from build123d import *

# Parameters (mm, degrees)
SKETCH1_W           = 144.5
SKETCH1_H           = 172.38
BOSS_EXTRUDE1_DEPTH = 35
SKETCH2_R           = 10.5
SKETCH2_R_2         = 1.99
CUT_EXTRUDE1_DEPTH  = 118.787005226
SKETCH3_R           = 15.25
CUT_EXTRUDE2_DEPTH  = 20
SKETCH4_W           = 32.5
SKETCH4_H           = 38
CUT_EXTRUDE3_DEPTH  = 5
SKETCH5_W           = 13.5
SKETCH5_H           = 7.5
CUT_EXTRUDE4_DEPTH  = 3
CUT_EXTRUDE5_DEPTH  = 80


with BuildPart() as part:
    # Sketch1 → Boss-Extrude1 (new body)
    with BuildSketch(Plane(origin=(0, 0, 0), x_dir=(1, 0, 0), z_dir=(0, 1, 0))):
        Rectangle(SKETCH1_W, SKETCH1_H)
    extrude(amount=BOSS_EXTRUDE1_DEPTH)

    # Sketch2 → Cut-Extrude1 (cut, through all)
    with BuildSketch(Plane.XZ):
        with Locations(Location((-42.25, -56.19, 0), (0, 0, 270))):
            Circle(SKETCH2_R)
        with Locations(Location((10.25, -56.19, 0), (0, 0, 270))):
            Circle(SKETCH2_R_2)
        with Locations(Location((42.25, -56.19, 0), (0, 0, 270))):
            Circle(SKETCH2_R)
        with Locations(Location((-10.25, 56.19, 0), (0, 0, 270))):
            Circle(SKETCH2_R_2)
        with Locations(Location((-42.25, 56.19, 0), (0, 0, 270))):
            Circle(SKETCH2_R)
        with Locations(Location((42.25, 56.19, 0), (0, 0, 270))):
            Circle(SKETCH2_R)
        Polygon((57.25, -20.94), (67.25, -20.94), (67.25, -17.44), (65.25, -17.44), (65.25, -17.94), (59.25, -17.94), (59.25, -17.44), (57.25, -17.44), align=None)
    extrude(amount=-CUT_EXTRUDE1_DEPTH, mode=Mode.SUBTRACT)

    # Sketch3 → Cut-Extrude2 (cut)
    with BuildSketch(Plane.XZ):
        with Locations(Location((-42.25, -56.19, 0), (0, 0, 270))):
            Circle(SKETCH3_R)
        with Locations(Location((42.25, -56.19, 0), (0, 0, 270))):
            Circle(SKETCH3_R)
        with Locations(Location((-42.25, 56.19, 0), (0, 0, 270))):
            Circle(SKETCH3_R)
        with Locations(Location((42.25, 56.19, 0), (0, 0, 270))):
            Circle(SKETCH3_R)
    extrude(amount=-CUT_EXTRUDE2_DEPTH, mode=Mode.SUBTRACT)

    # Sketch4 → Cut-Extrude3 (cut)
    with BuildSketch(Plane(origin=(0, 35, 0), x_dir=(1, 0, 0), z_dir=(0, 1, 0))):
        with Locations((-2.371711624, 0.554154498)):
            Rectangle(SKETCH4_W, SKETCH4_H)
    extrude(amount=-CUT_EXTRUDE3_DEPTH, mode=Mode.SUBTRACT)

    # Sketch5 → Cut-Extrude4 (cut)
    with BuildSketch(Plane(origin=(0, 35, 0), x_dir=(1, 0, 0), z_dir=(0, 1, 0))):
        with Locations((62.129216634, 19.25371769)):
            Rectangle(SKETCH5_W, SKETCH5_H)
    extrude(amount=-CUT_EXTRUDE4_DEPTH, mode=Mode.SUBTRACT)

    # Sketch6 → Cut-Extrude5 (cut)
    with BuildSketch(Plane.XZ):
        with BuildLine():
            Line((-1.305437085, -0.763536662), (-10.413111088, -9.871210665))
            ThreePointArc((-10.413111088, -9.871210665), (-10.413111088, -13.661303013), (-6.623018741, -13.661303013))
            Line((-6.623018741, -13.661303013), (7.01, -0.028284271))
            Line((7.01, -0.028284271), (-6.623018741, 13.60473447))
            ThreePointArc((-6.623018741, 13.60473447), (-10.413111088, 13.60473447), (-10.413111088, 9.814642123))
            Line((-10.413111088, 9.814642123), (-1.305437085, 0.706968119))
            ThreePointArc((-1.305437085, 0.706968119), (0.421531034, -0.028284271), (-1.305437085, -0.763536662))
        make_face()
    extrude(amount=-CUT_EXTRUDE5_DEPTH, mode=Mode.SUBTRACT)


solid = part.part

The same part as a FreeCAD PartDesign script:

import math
import FreeCAD as App
import Part
import Sketcher
Q = App.Units.Quantity

doc = App.newDocument("Part")
body = doc.addObject("PartDesign::Body", "Body")

# Sketch on XZ plane
sketch1 = doc.addObject("Sketcher::SketchObject", "Sketch")
body.addObject(sketch1)
sketch1.AttachmentSupport = (doc.XZ_Plane, [""])
sketch1.MapMode = "FlatFace"
sketch1.addGeometry(Part.LineSegment(App.Vector(-72.25, -86.19, 0), App.Vector(-72.25, 86.19, 0)), False)
sketch1.addGeometry(Part.LineSegment(App.Vector(-72.25, 86.19, 0), App.Vector(72.25, 86.19, 0)), False)
sketch1.addGeometry(Part.LineSegment(App.Vector(72.25, 86.19, 0), App.Vector(72.25, -86.19, 0)), False)
sketch1.addGeometry(Part.LineSegment(App.Vector(72.25, -86.19, 0), App.Vector(-72.25, -86.19, 0)), False)
sketch1.addConstraint(Sketcher.Constraint("Coincident", 0, 2, 1, 1))
sketch1.addConstraint(Sketcher.Constraint("Coincident", 1, 2, 2, 1))
sketch1.addConstraint(Sketcher.Constraint("Coincident", 2, 2, 3, 1))
sketch1.addConstraint(Sketcher.Constraint("Coincident", 3, 2, 0, 1))
sketch1.addConstraint(Sketcher.Constraint("Vertical", 0))
sketch1.addConstraint(Sketcher.Constraint("Horizontal", 1))
sketch1.addConstraint(Sketcher.Constraint("Vertical", 2))
sketch1.addConstraint(Sketcher.Constraint("Horizontal", 3))
sketch1.addConstraint(Sketcher.Constraint("Symmetric", 0, 2, 2, 2, -1, 1))
sketch1.addConstraint(Sketcher.Constraint("DistanceX", 1, 1, 1, 2, Q("144.5 mm")))
sketch1.addConstraint(Sketcher.Constraint("DistanceY", 0, 1, 0, 2, Q("172.38 mm")))
pad1 = doc.addObject("PartDesign::Pad", "Pad")
body.addObject(pad1)
pad1.Profile = sketch1
pad1.Length = 35
pad1.Reversed = True

# Sketch on XZ plane
sketch2 = doc.addObject("Sketcher::SketchObject", "Sketch001")
body.addObject(sketch2)
sketch2.AttachmentSupport = (doc.XZ_Plane, [""])
sketch2.MapMode = "FlatFace"
sketch2.addGeometry(Part.Circle(App.Vector(-42.25, -56.19, 0), App.Vector(0, 0, 1), 10.5), False)
sketch2.addGeometry(Part.Circle(App.Vector(10.25, -56.19, 0), App.Vector(0, 0, 1), 1.99), False)
sketch2.addGeometry(Part.Circle(App.Vector(42.25, -56.19, 0), App.Vector(0, 0, 1), 10.5), False)
sketch2.addGeometry(Part.Circle(App.Vector(-10.25, 56.19, 0), App.Vector(0, 0, 1), 1.99), False)
sketch2.addGeometry(Part.Circle(App.Vector(-42.25, 56.19, 0), App.Vector(0, 0, 1), 10.5), False)
sketch2.addGeometry(Part.Circle(App.Vector(42.25, 56.19, 0), App.Vector(0, 0, 1), 10.5), False)
sketch2.addGeometry(Part.LineSegment(App.Vector(57.25, -20.94, 0), App.Vector(67.25, -20.94, 0)), False)
sketch2.addGeometry(Part.LineSegment(App.Vector(67.25, -20.94, 0), App.Vector(67.25, -17.44, 0)), False)
sketch2.addGeometry(Part.LineSegment(App.Vector(67.25, -17.44, 0), App.Vector(65.25, -17.44, 0)), False)
sketch2.addGeometry(Part.LineSegment(App.Vector(65.25, -17.44, 0), App.Vector(65.25, -17.94, 0)), False)
sketch2.addGeometry(Part.LineSegment(App.Vector(65.25, -17.94, 0), App.Vector(59.25, -17.94, 0)), False)
sketch2.addGeometry(Part.LineSegment(App.Vector(59.25, -17.94, 0), App.Vector(59.25, -17.44, 0)), False)
sketch2.addGeometry(Part.LineSegment(App.Vector(59.25, -17.44, 0), App.Vector(57.25, -17.44, 0)), False)
sketch2.addGeometry(Part.LineSegment(App.Vector(57.25, -17.44, 0), App.Vector(57.25, -20.94, 0)), False)
sketch2.addConstraint(Sketcher.Constraint("Coincident", 6, 2, 7, 1))
sketch2.addConstraint(Sketcher.Constraint("Coincident", 7, 2, 8, 1))
sketch2.addConstraint(Sketcher.Constraint("Coincident", 8, 2, 9, 1))
sketch2.addConstraint(Sketcher.Constraint("Coincident", 9, 2, 10, 1))
sketch2.addConstraint(Sketcher.Constraint("Coincident", 10, 2, 11, 1))
sketch2.addConstraint(Sketcher.Constraint("Coincident", 11, 2, 12, 1))
sketch2.addConstraint(Sketcher.Constraint("Coincident", 12, 2, 13, 1))
sketch2.addConstraint(Sketcher.Constraint("Coincident", 13, 2, 6, 1))
sketch2.addConstraint(Sketcher.Constraint("Horizontal", 6))
sketch2.addConstraint(Sketcher.Constraint("Vertical", 7))
sketch2.addConstraint(Sketcher.Constraint("Horizontal", 8))
sketch2.addConstraint(Sketcher.Constraint("Vertical", 9))
sketch2.addConstraint(Sketcher.Constraint("Horizontal", 10))
sketch2.addConstraint(Sketcher.Constraint("Vertical", 11))
sketch2.addConstraint(Sketcher.Constraint("Horizontal", 12))
sketch2.addConstraint(Sketcher.Constraint("Vertical", 13))
sketch2.addConstraint(Sketcher.Constraint("Equal", 0, 2))
sketch2.addConstraint(Sketcher.Constraint("Equal", 1, 3))
sketch2.addConstraint(Sketcher.Constraint("Equal", 2, 4))
sketch2.addConstraint(Sketcher.Constraint("Equal", 4, 5))
sketch2.addConstraint(Sketcher.Constraint("Symmetric", 1, 3, 3, 3, -1, 1))
sketch2.addConstraint(Sketcher.Constraint("Symmetric", 2, 3, 4, 3, -1, 1))
sketch2.addConstraint(Sketcher.Constraint("Symmetric", 0, 3, 5, 3, -1, 1))
sketch2.addConstraint(Sketcher.Constraint("Symmetric", 0, 3, 2, 3, -2))
sketch2.addConstraint(Sketcher.Constraint("Horizontal", 0, 3, 1, 3))
sketch2.addConstraint(Sketcher.Constraint("Horizontal", 8, 2, 11, 2))
sketch2.addConstraint(Sketcher.Constraint("Equal", 8, 12))
sketch2.addConstraint(Sketcher.Constraint("Diameter", 0, Q("21 mm")))
sketch2.addConstraint(Sketcher.Constraint("Diameter", 1, Q("3.98 mm")))
sketch2.addConstraint(Sketcher.Constraint("DistanceX", 6, 1, 6, 2, Q("10 mm")))
sketch2.addConstraint(Sketcher.Constraint("DistanceX", 8, 2, 8, 1, Q("2 mm")))
sketch2.addConstraint(Sketcher.Constraint("DistanceY", 7, 1, 7, 2, Q("3.5 mm")))
sketch2.addConstraint(Sketcher.Constraint("DistanceY", 9, 2, 9, 1, Q("0.5 mm")))
sketch2.addConstraint(Sketcher.Constraint("DistanceX", 1, 3, 2, 3, Q("32 mm")))
sketch2.addConstraint(Sketcher.Constraint("DistanceX", 2, 3, 6, 2, Q("25 mm")))
sketch2.addConstraint(Sketcher.Constraint("DistanceX", 0, 3, 1, 3, Q("52.5 mm")))
sketch2.addConstraint(Sketcher.Constraint("DistanceY", 0, 3, -1, 1, Q("56.19 mm")))
sketch2.addConstraint(Sketcher.Constraint("DistanceY", 6, 2, -1, 1, Q("20.94 mm")))
pocket1 = doc.addObject("PartDesign::Pocket", "Pocket")
body.addObject(pocket1)
pocket1.Profile = sketch2
pocket1.Type = "ThroughAll"

# Sketch on XZ plane
sketch3 = doc.addObject("Sketcher::SketchObject", "Sketch002")
body.addObject(sketch3)
sketch3.AttachmentSupport = (doc.XZ_Plane, [""])
sketch3.MapMode = "FlatFace"
sketch3.addGeometry(Part.Circle(App.Vector(-42.25, -56.19, 0), App.Vector(0, 0, 1), 15.25), False)
sketch3.addGeometry(Part.Circle(App.Vector(42.25, -56.19, 0), App.Vector(0, 0, 1), 15.25), False)
sketch3.addGeometry(Part.Circle(App.Vector(-42.25, 56.19, 0), App.Vector(0, 0, 1), 15.25), False)
sketch3.addGeometry(Part.Circle(App.Vector(42.25, 56.19, 0), App.Vector(0, 0, 1), 15.25), False)
sketch3.addConstraint(Sketcher.Constraint("Equal", 0, 1))
sketch3.addConstraint(Sketcher.Constraint("Equal", 1, 2))
sketch3.addConstraint(Sketcher.Constraint("Equal", 2, 3))
sketch3.addConstraint(Sketcher.Constraint("Symmetric", 1, 3, 2, 3, -1, 1))
sketch3.addConstraint(Sketcher.Constraint("Symmetric", 0, 3, 3, 3, -1, 1))
sketch3.addConstraint(Sketcher.Constraint("Symmetric", 0, 3, 1, 3, -2))
sketch3.addConstraint(Sketcher.Constraint("Diameter", 0, Q("30.5 mm")))
sketch3.addConstraint(Sketcher.Constraint("DistanceX", 0, 3, 1, 3, Q("84.5 mm")))
sketch3.addConstraint(Sketcher.Constraint("DistanceY", 0, 3, -1, 1, Q("56.19 mm")))
pocket2 = doc.addObject("PartDesign::Pocket", "Pocket001")
body.addObject(pocket2)
pocket2.Profile = sketch3
pocket2.Length = 20

# Sketch on XZ plane
sketch4 = doc.addObject("Sketcher::SketchObject", "Sketch003")
body.addObject(sketch4)
sketch4.AttachmentSupport = (doc.XZ_Plane, [""])
sketch4.MapMode = "FlatFace"
sketch4.AttachmentOffset = App.Placement(App.Vector(0, 0, -35), App.Rotation())
sketch4.addGeometry(Part.LineSegment(App.Vector(-18.621712, -19.554154, 0), App.Vector(-18.621712, 18.445846, 0)), False)
sketch4.addGeometry(Part.LineSegment(App.Vector(-18.621712, 18.445846, 0), App.Vector(13.878288, 18.445846, 0)), False)
sketch4.addGeometry(Part.LineSegment(App.Vector(13.878288, 18.445846, 0), App.Vector(13.878288, -19.554154, 0)), False)
sketch4.addGeometry(Part.LineSegment(App.Vector(13.878288, -19.554154, 0), App.Vector(-18.621712, -19.554154, 0)), False)
sketch4.addConstraint(Sketcher.Constraint("Coincident", 0, 2, 1, 1))
sketch4.addConstraint(Sketcher.Constraint("Coincident", 1, 2, 2, 1))
sketch4.addConstraint(Sketcher.Constraint("Coincident", 2, 2, 3, 1))
sketch4.addConstraint(Sketcher.Constraint("Coincident", 3, 2, 0, 1))
sketch4.addConstraint(Sketcher.Constraint("Vertical", 0))
sketch4.addConstraint(Sketcher.Constraint("Horizontal", 1))
sketch4.addConstraint(Sketcher.Constraint("Vertical", 2))
sketch4.addConstraint(Sketcher.Constraint("Horizontal", 3))
sketch4.addConstraint(Sketcher.Constraint("DistanceY", 0, 1, 0, 2, Q("38 mm")))
sketch4.addConstraint(Sketcher.Constraint("DistanceX", 1, 1, 1, 2, Q("32.5 mm")))
sketch4.addConstraint(Sketcher.Constraint("DistanceX", 0, 2, -1, 1, Q("18.621712 mm")))
sketch4.addConstraint(Sketcher.Constraint("DistanceY", -1, 1, 0, 2, Q("18.445846 mm")))
pocket3 = doc.addObject("PartDesign::Pocket", "Pocket002")
body.addObject(pocket3)
pocket3.Profile = sketch4
pocket3.Length = 5
pocket3.Reversed = True

# Sketch on XZ plane
sketch5 = doc.addObject("Sketcher::SketchObject", "Sketch004")
body.addObject(sketch5)
sketch5.AttachmentSupport = (doc.XZ_Plane, [""])
sketch5.MapMode = "FlatFace"
sketch5.AttachmentOffset = App.Placement(App.Vector(0, 0, -35), App.Rotation())
sketch5.addGeometry(Part.LineSegment(App.Vector(55.379217, -23.003718, 0), App.Vector(55.379217, -15.503718, 0)), False)
sketch5.addGeometry(Part.LineSegment(App.Vector(55.379217, -15.503718, 0), App.Vector(68.879217, -15.503718, 0)), False)
sketch5.addGeometry(Part.LineSegment(App.Vector(68.879217, -15.503718, 0), App.Vector(68.879217, -23.003718, 0)), False)
sketch5.addGeometry(Part.LineSegment(App.Vector(68.879217, -23.003718, 0), App.Vector(55.379217, -23.003718, 0)), False)
sketch5.addConstraint(Sketcher.Constraint("Coincident", 0, 2, 1, 1))
sketch5.addConstraint(Sketcher.Constraint("Coincident", 1, 2, 2, 1))
sketch5.addConstraint(Sketcher.Constraint("Coincident", 2, 2, 3, 1))
sketch5.addConstraint(Sketcher.Constraint("Coincident", 3, 2, 0, 1))
sketch5.addConstraint(Sketcher.Constraint("Vertical", 0))
sketch5.addConstraint(Sketcher.Constraint("Horizontal", 1))
sketch5.addConstraint(Sketcher.Constraint("Vertical", 2))
sketch5.addConstraint(Sketcher.Constraint("Horizontal", 3))
sketch5.addConstraint(Sketcher.Constraint("DistanceX", 1, 1, 1, 2, Q("13.5 mm")))
sketch5.addConstraint(Sketcher.Constraint("DistanceY", 0, 1, 0, 2, Q("7.5 mm")))
sketch5.addConstraint(Sketcher.Constraint("DistanceX", -1, 1, 0, 2, Q("55.379217 mm")))
sketch5.addConstraint(Sketcher.Constraint("DistanceY", 0, 2, -1, 1, Q("15.503718 mm")))
pocket4 = doc.addObject("PartDesign::Pocket", "Pocket003")
body.addObject(pocket4)
pocket4.Profile = sketch5
pocket4.Length = 3
pocket4.Reversed = True

# Sketch on XZ plane
sketch6 = doc.addObject("Sketcher::SketchObject", "Sketch005")
body.addObject(sketch6)
sketch6.AttachmentSupport = (doc.XZ_Plane, [""])
sketch6.MapMode = "FlatFace"
sketch6.addGeometry(Part.LineSegment(App.Vector(-1.305437, -0.763537, 0), App.Vector(-10.413111, -9.871211, 0)), False)
sketch6.addGeometry(Part.ArcOfCircle(Part.Circle(App.Vector(-8.518065, -11.766257, 0), App.Vector(0, 0, 1), 2.68), math.radians(135), math.radians(315)), False)
sketch6.addGeometry(Part.LineSegment(App.Vector(-6.623019, -13.661303, 0), App.Vector(7.01, -0.028284, 0)), False)
sketch6.addGeometry(Part.LineSegment(App.Vector(7.01, -0.028284, 0), App.Vector(-6.623019, 13.604734, 0)), False)
sketch6.addGeometry(Part.ArcOfCircle(Part.Circle(App.Vector(-8.518065, 11.709688, 0), App.Vector(0, 0, 1), 2.68), math.radians(45), math.radians(225)), False)
sketch6.addGeometry(Part.LineSegment(App.Vector(-10.413111, 9.814642, 0), App.Vector(-1.305437, 0.706968, 0)), False)
sketch6.addGeometry(Part.ArcOfCircle(Part.Circle(App.Vector(-0.598469, -0.028284, 0), App.Vector(0, 0, 1), 1.02), math.radians(-133.876481), math.radians(133.876481)), False)
sketch6.addConstraint(Sketcher.Constraint("Tangent", 0, 2, 1, 1))
sketch6.addConstraint(Sketcher.Constraint("Tangent", 1, 2, 2, 1))
sketch6.addConstraint(Sketcher.Constraint("Coincident", 2, 2, 3, 1))
sketch6.addConstraint(Sketcher.Constraint("Tangent", 3, 2, 4, 1))
sketch6.addConstraint(Sketcher.Constraint("Tangent", 4, 2, 5, 1))
sketch6.addConstraint(Sketcher.Constraint("Coincident", 5, 2, 6, 2))
sketch6.addConstraint(Sketcher.Constraint("Coincident", 6, 1, 0, 1))
sketch6.addConstraint(Sketcher.Constraint("Equal", 1, 4))
sketch6.addConstraint(Sketcher.Constraint("Parallel", 0, 2))
sketch6.addConstraint(Sketcher.Constraint("Perpendicular", 2, 3))
sketch6.addConstraint(Sketcher.Constraint("Parallel", 3, 5))
sketch6.addConstraint(Sketcher.Constraint("Horizontal", 6, 3, 2, 2))
sketch6.addConstraint(Sketcher.Constraint("Vertical", 1, 3, 4, 3))
sketch6.addConstraint(Sketcher.Constraint("Vertical", 1, 2, 3, 2))
sketch6.addConstraint(Sketcher.Constraint("Radius", 1, Q("2.68 mm")))
sketch6.addConstraint(Sketcher.Constraint("Radius", 6, Q("1.02 mm")))
sketch6.addConstraint(Sketcher.Constraint("Distance", 2, Q("19.28 mm")))
sketch6.addConstraint(Sketcher.Constraint("DistanceX", -1, 1, 2, 2, Q("7.01 mm")))
sketch6.addConstraint(Sketcher.Constraint("DistanceY", -1, 1, 4, 3, Q("11.709688 mm")))
sketch6.addConstraint(Sketcher.Constraint("DistanceX", 6, 3, -1, 1, Q("0.598469 mm")))
pocket5 = doc.addObject("PartDesign::Pocket", "Pocket004")
body.addObject(pocket5)
pocket5.Profile = sketch6
pocket5.Length = 80

doc.recompute()
